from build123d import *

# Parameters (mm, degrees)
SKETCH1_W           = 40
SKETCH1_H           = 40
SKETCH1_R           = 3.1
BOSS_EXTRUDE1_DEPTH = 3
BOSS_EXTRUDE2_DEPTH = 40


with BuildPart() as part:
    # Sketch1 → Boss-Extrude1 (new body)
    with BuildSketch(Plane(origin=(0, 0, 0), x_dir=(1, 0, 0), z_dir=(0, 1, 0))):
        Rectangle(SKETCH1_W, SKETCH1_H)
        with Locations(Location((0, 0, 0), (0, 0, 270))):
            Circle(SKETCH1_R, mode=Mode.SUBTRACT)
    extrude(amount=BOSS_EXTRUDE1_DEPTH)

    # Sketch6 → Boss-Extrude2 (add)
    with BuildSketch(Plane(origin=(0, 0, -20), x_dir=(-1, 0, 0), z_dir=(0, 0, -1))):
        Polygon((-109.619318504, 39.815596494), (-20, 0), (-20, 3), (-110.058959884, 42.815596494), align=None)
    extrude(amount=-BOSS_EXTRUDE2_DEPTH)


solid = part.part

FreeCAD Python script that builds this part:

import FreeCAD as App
import Part
import Sketcher


def add_polygon(sketch, points):
    """Adds a closed chain of lines whose ends are joined by coincident constraints."""
    first, n = sketch.GeometryCount, len(points)
    for a, b in zip(points, points[1:] + points[:1]):
        sketch.addGeometry(Part.LineSegment(App.Vector(*a, 0), App.Vector(*b, 0)), False)
    for i in range(n):
        sketch.addConstraint(Sketcher.Constraint("Coincident", first + i, 2, first + (i + 1) % n, 1))

doc = App.newDocument("Part")
body = doc.addObject("PartDesign::Body", "Body")

# Sketch on XZ plane
sketch1 = body.newObject("Sketcher::SketchObject", "Sketch")
sketch1.AttachmentSupport = (doc.getObject("XZ_Plane"), [""])
sketch1.MapMode = "FlatFace"
add_polygon(sketch1, [(-20, -20), (-20, 20), (20, 20), (20, -20)])  # lines 0-3
sketch1.addGeometry(Part.Circle(App.Vector(0, 0, 0), App.Vector(0, 0, 1), 3.1), False)  # 4
sketch1.addConstraint([
    Sketcher.Constraint("Vertical", 0),
    Sketcher.Constraint("Horizontal", 1),
    Sketcher.Constraint("Vertical", 2),
    Sketcher.Constraint("Horizontal", 3),
    Sketcher.Constraint("Coincident", 4, 3, -1, 1),
    Sketcher.Constraint("Symmetric", 0, 2, 2, 2, -1, 1),
    Sketcher.Constraint("Equal", 3, 0),
    Sketcher.Constraint("Diameter", 4, 6.2),
    Sketcher.Constraint("DistanceX", 1, 1, 1, 2, 40.0),
])
pad1 = body.newObject("PartDesign::Pad", "Pad")
pad1.Profile = sketch1
pad1.Length = 3
pad1.Reversed = True

# Sketch on XY plane
sketch2 = body.newObject("Sketcher::SketchObject", "Sketch001")
sketch2.AttachmentSupport = (doc.getObject("XY_Plane"), [""])
sketch2.MapMode = "FlatFace"
sketch2.AttachmentOffset = App.Placement(App.Vector(0, 0, -20), App.Rotation())
add_polygon(sketch2, [(109.619319, 39.815596), (20, 0), (20, 3), (110.05896, 42.815596)])  # lines 0-3
sketch2.addConstraint([
    Sketcher.Constraint("Vertical", 1),
    Sketcher.Constraint("PointOnObject", 0, 2, -1),
    Sketcher.Constraint("DistanceY", 1, 1, 1, 2, 3.0),
    Sketcher.Constraint("DistanceX", -1, 1, 0, 2, 20.0),
    Sketcher.Constraint("DistanceY", 3, 2, 2, 2, 3.0),
    Sketcher.Constraint("Distance", 2, 98.467751),
    Sketcher.Constraint("DistanceX", -1, 1, 2, 2, 110.05896),
    Sketcher.Constraint("DistanceX", -1, 1, 3, 2, 109.619319),
])
pad2 = body.newObject("PartDesign::Pad", "Pad001")
pad2.Profile = sketch2
pad2.Length = 40

doc.recompute()
